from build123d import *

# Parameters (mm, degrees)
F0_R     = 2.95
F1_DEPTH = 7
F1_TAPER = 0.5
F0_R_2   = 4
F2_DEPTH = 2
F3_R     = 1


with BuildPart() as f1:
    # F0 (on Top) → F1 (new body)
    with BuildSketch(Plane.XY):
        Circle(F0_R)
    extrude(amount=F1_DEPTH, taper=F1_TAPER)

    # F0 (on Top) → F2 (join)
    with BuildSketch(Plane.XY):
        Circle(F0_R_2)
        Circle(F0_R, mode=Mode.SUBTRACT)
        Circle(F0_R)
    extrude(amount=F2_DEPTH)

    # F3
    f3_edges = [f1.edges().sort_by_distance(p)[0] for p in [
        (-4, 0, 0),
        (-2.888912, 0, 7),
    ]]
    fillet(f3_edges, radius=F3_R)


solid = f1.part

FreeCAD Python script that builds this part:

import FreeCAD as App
import Part
import Sketcher


def edges_at(feature, points):
    """Names of the edges that pass closest to the given points."""
    edges = feature.Shape.Edges
    near = lambda p: min(range(len(edges)), key=lambda i: edges[i].distToShape(Part.Vertex(*p))[0])
    return sorted({f"Edge{near(p) + 1}" for p in points})

doc = App.newDocument("Part")
body = doc.addObject("PartDesign::Body", "Body")

# Sketch on XY plane
sketch1 = doc.addObject("Sketcher::SketchObject", "Sketch")
body.addObject(sketch1)
sketch1.AttachmentSupport = (doc.XY_Plane, [""])
sketch1.MapMode = "FlatFace"
sketch1.addGeometry(Part.Circle(App.Vector(0, 0, 0), App.Vector(0, 0, 1), 2.95), False)
sketch1.addConstraint([
    Sketcher.Constraint("Coincident", 0, 3, -1, 1),
    Sketcher.Constraint("Diameter", 0, 5.9),
])
pad1 = doc.addObject("PartDesign::Pad", "Pad")
body.addObject(pad1)
pad1.Profile = sketch1
pad1.Length = 7
pad1.TaperAngle = -0.5

# Sketch on XY plane
sketch2 = doc.addObject("Sketcher::SketchObject", "Sketch001")
body.addObject(sketch2)
sketch2.AttachmentSupport = (doc.XY_Plane, [""])
sketch2.MapMode = "FlatFace"
sketch2.addGeometry(Part.Circle(App.Vector(0, 0, 0), App.Vector(0, 0, 1), 4), False)
sketch2.addConstraint([
    Sketcher.Constraint("Coincident", 0, 3, -1, 1),
    Sketcher.Constraint("Diameter", 0, 8.0),
])
pad2 = doc.addObject("PartDesign::Pad", "Pad001")
body.addObject(pad2)
pad2.Profile = sketch2
pad2.Length = 2
doc.recompute()

fillet = doc.addObject("PartDesign::Fillet", "Fillet")
body.addObject(fillet)
fillet.Base = (pad2, edges_at(pad2, [(-4, 0, 0), (-2.889, 0, 7)]))
fillet.Radius = 1

doc.recompute()
